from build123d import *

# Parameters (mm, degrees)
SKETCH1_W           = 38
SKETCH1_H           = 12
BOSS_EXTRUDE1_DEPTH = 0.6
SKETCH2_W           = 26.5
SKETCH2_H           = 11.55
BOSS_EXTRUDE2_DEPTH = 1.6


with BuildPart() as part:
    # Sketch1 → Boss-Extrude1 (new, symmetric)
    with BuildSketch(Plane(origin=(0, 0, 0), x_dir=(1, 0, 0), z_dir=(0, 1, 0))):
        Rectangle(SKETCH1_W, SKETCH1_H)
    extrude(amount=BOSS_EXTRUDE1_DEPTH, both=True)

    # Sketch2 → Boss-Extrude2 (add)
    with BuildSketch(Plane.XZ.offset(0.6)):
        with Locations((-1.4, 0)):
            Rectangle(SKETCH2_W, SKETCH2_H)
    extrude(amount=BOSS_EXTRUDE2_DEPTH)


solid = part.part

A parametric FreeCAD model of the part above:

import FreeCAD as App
import Part
import Sketcher

doc = App.newDocument("Part")
params = doc.addObject("Spreadsheet::Sheet", "Params")
for row, (alias, value) in enumerate([
    ("sketch1_width", "38 mm"),
    ("sketch1_height", "12 mm"),
    ("pad1_length", "1.2 mm"),
    ("sketch2_width", "26.5 mm"),
    ("sketch2_height", "11.55 mm"),
    ("pad2_length", "1.6 mm"),
], start=1):
    params.set(f"A{row}", alias)
    params.set(f"B{row}", "=" + value)
    params.setAlias(f"B{row}", alias)

body = doc.addObject("PartDesign::Body", "Body")

sketch1 = body.newObject("Sketcher::SketchObject", "Sketch")
sketch1.AttachmentSupport = (doc.getObject("XZ_Plane"), [""])
sketch1.MapMode = "FlatFace"
sketch1.addGeometry([
    Part.LineSegment(App.Vector(-19, -6, 0), App.Vector(-19, 6, 0)),
    Part.LineSegment(App.Vector(-19, 6, 0), App.Vector(19, 6, 0)),
    Part.LineSegment(App.Vector(19, 6, 0), App.Vector(19, -6, 0)),
    Part.LineSegment(App.Vector(19, -6, 0), App.Vector(-19, -6, 0)),
], False)
sketch1.addConstraint([
    Sketcher.Constraint("Coincident", 0, 2, 1, 1),
    Sketcher.Constraint("Coincident", 1, 2, 2, 1),
    Sketcher.Constraint("Coincident", 2, 2, 3, 1),
    Sketcher.Constraint("Coincident", 3, 2, 0, 1),
    Sketcher.Constraint("Vertical", 0),
    Sketcher.Constraint("Horizontal", 1),
    Sketcher.Constraint("Vertical", 2),
    Sketcher.Constraint("Horizontal", 3),
    Sketcher.Constraint("Symmetric", 0, 2, 2, 2, -1, 1),
    Sketcher.Constraint("DistanceX", 1, 1, 1, 2, 38.0),
    Sketcher.Constraint("DistanceY", 0, 1, 0, 2, 12.0),
])
sketch1.setExpression("Constraints[9]", "Params.sketch1_width")
sketch1.setExpression("Constraints[10]", "Params.sketch1_height")
pad1 = body.newObject("PartDesign::Pad", "Pad")
pad1.Profile = sketch1
pad1.setExpression("Length", "Params.pad1_length")
pad1.Midplane = True

sketch2 = body.newObject("Sketcher::SketchObject", "Sketch001")
sketch2.AttachmentSupport = (doc.getObject("XZ_Plane"), [""])
sketch2.MapMode = "FlatFace"
sketch2.AttachmentOffset = App.Placement(App.Vector(0, 0, 0.6), App.Rotation())
sketch2.addGeometry([
    Part.LineSegment(App.Vector(-15, 6, 0), App.Vector(-15, -6, 0)),
    Part.LineSegment(App.Vector(-15, -6, 0), App.Vector(12, -6, 0)),
    Part.LineSegment(App.Vector(12, -6, 0), App.Vector(12, 6, 0)),
    Part.LineSegment(App.Vector(12, 6, 0), App.Vector(-15, 6, 0)),
], False)
sketch2.addConstraint([
    Sketcher.Constraint("Coincident", 0, 2, 1, 1),
    Sketcher.Constraint("Coincident", 1, 2, 2, 1),
    Sketcher.Constraint("Coincident", 2, 2, 3, 1),
    Sketcher.Constraint("Coincident", 3, 2, 0, 1),
    Sketcher.Constraint("Vertical", 0),
    Sketcher.Constraint("Horizontal", 1),
    Sketcher.Constraint("Vertical", 2),
    Sketcher.Constraint("Horizontal", 3),
    Sketcher.Constraint("DistanceX", 1, 1, 1, 2, 26.5),
    Sketcher.Constraint("DistanceY", 0, 2, 0, 1, 11.55),
    Sketcher.Constraint("DistanceX", 0, 2, -1, 1, 14.65),
    Sketcher.Constraint("DistanceY", 0, 2, -1, 1, 5.775),
])
sketch2.setExpression("Constraints[8]", "Params.sketch2_width")
sketch2.setExpression("Constraints[9]", "Params.sketch2_height")
pad2 = body.newObject("PartDesign::Pad", "Pad001")
pad2.Profile = sketch2
pad2.setExpression("Length", "Params.pad2_length")

doc.recompute()
